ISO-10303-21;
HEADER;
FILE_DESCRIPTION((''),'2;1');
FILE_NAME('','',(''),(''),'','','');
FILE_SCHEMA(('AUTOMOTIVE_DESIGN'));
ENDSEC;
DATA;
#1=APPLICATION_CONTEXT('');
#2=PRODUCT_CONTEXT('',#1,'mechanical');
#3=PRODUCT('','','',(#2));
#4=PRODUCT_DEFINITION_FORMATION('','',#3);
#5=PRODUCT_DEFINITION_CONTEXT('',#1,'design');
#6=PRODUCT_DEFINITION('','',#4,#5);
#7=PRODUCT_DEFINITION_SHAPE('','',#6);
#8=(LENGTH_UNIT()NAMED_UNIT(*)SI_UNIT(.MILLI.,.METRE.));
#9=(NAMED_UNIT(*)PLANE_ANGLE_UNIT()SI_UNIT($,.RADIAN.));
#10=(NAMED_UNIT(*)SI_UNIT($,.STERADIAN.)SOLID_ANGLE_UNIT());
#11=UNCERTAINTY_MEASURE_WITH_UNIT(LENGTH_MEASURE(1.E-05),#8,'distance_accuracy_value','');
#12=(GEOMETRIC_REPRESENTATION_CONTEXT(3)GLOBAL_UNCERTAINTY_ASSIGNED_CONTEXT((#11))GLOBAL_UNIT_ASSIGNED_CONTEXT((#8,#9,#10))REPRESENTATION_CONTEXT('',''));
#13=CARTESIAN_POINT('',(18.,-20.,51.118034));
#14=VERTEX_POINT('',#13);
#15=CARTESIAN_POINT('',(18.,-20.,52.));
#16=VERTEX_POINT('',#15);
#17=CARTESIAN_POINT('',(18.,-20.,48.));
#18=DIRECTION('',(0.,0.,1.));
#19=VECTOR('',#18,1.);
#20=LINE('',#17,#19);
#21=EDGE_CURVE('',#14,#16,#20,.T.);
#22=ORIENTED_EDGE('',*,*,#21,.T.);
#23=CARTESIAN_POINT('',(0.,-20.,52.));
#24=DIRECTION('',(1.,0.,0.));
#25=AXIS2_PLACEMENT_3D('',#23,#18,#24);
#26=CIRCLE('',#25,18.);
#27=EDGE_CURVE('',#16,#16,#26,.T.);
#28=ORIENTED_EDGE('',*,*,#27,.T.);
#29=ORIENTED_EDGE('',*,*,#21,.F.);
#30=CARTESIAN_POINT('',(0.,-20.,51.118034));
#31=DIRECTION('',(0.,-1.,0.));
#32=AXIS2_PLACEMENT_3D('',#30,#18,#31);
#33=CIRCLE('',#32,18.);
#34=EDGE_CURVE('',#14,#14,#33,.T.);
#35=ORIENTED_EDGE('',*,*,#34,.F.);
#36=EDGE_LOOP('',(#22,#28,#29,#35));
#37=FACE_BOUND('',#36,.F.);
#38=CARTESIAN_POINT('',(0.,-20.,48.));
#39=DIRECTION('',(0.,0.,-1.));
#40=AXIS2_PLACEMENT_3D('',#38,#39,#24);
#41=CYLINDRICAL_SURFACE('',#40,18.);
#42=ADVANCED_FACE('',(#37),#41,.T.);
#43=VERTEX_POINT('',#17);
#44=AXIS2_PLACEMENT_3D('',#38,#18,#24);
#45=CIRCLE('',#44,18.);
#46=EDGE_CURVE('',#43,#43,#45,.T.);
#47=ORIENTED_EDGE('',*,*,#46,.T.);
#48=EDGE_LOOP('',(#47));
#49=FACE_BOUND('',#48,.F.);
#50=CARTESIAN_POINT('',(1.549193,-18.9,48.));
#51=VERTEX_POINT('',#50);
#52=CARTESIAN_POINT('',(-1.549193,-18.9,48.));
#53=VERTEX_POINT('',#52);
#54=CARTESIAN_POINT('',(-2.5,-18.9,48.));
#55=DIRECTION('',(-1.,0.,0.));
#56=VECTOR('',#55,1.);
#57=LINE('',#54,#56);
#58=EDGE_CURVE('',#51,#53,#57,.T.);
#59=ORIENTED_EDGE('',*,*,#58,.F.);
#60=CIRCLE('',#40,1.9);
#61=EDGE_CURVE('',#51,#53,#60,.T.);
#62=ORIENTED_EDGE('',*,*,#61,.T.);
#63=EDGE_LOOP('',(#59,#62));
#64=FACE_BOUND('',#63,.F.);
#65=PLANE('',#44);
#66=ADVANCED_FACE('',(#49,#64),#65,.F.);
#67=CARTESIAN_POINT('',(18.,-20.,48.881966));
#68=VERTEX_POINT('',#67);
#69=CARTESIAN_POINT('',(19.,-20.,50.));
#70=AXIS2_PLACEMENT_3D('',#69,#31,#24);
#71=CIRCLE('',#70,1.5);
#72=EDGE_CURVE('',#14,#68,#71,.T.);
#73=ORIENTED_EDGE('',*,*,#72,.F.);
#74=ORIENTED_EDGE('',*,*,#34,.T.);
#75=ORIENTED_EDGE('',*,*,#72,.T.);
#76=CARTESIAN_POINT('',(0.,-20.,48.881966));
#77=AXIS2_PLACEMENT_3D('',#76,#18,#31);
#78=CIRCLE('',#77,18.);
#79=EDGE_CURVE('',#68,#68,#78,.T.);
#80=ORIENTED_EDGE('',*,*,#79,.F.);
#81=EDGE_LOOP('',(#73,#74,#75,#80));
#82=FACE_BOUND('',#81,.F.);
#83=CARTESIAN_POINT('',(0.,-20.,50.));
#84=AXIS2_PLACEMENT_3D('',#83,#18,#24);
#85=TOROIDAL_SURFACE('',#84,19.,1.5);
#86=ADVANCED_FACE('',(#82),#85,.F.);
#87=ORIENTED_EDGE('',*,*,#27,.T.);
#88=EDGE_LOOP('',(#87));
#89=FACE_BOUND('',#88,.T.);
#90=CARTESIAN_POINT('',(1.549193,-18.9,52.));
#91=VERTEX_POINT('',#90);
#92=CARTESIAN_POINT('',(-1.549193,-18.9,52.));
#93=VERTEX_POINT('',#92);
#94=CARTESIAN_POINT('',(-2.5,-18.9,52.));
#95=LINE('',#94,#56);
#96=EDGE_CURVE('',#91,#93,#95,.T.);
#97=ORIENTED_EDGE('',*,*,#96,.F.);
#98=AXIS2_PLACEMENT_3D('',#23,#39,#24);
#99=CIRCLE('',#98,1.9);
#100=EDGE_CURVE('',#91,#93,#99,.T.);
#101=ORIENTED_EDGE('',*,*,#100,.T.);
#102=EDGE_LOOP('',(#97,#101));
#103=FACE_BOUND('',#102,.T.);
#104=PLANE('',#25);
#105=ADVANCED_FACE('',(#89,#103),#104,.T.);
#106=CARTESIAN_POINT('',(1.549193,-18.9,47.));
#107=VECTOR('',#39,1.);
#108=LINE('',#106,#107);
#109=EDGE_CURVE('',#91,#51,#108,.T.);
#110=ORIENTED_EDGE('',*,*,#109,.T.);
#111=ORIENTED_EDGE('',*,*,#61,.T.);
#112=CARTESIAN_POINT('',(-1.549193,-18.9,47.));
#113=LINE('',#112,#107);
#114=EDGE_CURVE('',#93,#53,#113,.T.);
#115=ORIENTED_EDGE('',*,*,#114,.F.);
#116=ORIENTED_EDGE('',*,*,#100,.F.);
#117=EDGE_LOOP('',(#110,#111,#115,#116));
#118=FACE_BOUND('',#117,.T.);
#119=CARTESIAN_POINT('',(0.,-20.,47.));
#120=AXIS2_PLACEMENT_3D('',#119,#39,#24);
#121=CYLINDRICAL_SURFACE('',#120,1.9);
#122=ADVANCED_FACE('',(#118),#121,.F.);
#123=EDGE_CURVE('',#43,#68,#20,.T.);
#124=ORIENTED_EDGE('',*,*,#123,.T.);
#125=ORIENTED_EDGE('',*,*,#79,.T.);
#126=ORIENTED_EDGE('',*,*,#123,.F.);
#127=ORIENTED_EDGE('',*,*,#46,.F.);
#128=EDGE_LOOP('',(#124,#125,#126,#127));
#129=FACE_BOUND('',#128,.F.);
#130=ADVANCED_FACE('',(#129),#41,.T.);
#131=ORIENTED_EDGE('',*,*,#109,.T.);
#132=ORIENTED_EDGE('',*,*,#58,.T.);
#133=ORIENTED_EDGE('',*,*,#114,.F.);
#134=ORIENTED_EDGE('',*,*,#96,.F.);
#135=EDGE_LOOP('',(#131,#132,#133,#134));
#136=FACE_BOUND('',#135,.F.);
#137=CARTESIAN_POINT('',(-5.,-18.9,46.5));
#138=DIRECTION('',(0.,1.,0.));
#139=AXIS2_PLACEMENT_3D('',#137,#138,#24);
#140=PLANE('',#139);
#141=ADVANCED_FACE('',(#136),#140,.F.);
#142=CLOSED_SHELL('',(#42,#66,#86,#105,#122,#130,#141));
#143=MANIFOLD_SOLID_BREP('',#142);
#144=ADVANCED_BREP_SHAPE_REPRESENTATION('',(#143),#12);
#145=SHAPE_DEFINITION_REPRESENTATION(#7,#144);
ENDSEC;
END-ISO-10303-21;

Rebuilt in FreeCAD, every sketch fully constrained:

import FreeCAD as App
import Part
import Sketcher
Q = App.Units.Quantity

doc = App.newDocument("Part")
body = doc.addObject("PartDesign::Body", "Body")

sketch1 = doc.addObject("Sketcher::SketchObject", "Sketch")
body.addObject(sketch1)
sketch1.AttachmentSupport = (doc.XZ_Plane, [""])
sketch1.MapMode = "FlatFace"
sketch1.addGeometry(Part.Circle(App.Vector(19, 2, 0), App.Vector(0, 0, 1), 1.5), False)
sketch1.addConstraint([
    Sketcher.Constraint("Diameter", 0, Q("3 mm")),
    Sketcher.Constraint("DistanceX", -1, 1, 0, 3, Q("19 mm")),
    Sketcher.Constraint("DistanceY", -1, 1, 0, 3, Q("2 mm")),
])
revolution = doc.addObject("PartDesign::Revolution", "Revolution")
body.addObject(revolution)
revolution.Profile = sketch1
revolution.ReferenceAxis = (sketch1, ["V_Axis"])
revolution.Angle = 360
body2 = doc.addObject("PartDesign::Body", "Body001")

sketch2 = doc.addObject("Sketcher::SketchObject", "Sketch001")
body2.addObject(sketch2)
sketch2.AttachmentSupport = (doc.getObject("XY_Plane001"), [""])
sketch2.MapMode = "FlatFace"
sketch2.AttachmentOffset = App.Placement(App.Vector(0, 0, -1.5), App.Rotation())
sketch2.addGeometry([
    Part.LineSegment(App.Vector(-5, 11.1, 0), App.Vector(-5, 1.1, 0)),
    Part.LineSegment(App.Vector(-5, 1.1, 0), App.Vector(5, 1.1, 0)),
    Part.LineSegment(App.Vector(5, 1.1, 0), App.Vector(5, 11.1, 0)),
    Part.LineSegment(App.Vector(5, 11.1, 0), App.Vector(-5, 11.1, 0)),
], False)
sketch2.addConstraint([
    Sketcher.Constraint("Coincident", 0, 2, 1, 1),
    Sketcher.Constraint("Coincident", 1, 2, 2, 1),
    Sketcher.Constraint("Coincident", 2, 2, 3, 1),
    Sketcher.Constraint("Coincident", 3, 2, 0, 1),
    Sketcher.Constraint("Vertical", 0),
    Sketcher.Constraint("Horizontal", 1),
    Sketcher.Constraint("Vertical", 2),
    Sketcher.Constraint("Horizontal", 3),
    Sketcher.Constraint("Equal", 3, 0),
    Sketcher.Constraint("DistanceX", 1, 1, 1, 2, Q("10 mm")),
    Sketcher.Constraint("DistanceX", 0, 2, -1, 1, Q("5 mm")),
    Sketcher.Constraint("DistanceY", -1, 1, 0, 2, Q("1.1 mm")),
])
pad1 = doc.addObject("PartDesign::Pad", "Pad")
body2.addObject(pad1)
pad1.Profile = sketch2
pad1.Length = 12
body3 = doc.addObject("PartDesign::Body", "Body002")

sketch3 = doc.addObject("Sketcher::SketchObject", "Sketch002")
body3.addObject(sketch3)
sketch3.AttachmentSupport = (doc.getObject("XY_Plane002"), [""])
sketch3.MapMode = "FlatFace"
sketch3.AttachmentOffset = App.Placement(App.Vector(0, 0, -1), App.Rotation())
sketch3.addGeometry(Part.Circle(App.Vector(0, 0, 0), App.Vector(0, 0, 1), 1.9), False)
sketch3.addConstraint([
    Sketcher.Constraint("Coincident", 0, 3, -1, 1),
    Sketcher.Constraint("Diameter", 0, Q("3.8 mm")),
])
pad2 = doc.addObject("PartDesign::Pad", "Pad001")
body3.addObject(pad2)
pad2.Profile = sketch3
pad2.Length = 10
doc.recompute()

boolean = doc.addObject("PartDesign::Boolean", "Boolean")
body3.addObject(boolean)
boolean.Type = "Cut"
boolean.addObjects([body2])
body4 = doc.addObject("PartDesign::Body", "Body003")

sketch4 = doc.addObject("Sketcher::SketchObject", "Sketch003")
body4.addObject(sketch4)
sketch4.AttachmentSupport = (doc.getObject("XY_Plane003"), [""])
sketch4.MapMode = "FlatFace"
sketch4.addGeometry(Part.Circle(App.Vector(0, 0, 0), App.Vector(0, 0, 1), 18), False)
sketch4.addConstraint([
    Sketcher.Constraint("Coincident", 0, 3, -1, 1),
    Sketcher.Constraint("Diameter", 0, Q("36 mm")),
])
pad3 = doc.addObject("PartDesign::Pad", "Pad002")
body4.addObject(pad3)
pad3.Profile = sketch4
pad3.Length = 4
doc.recompute()

boolean2 = doc.addObject("PartDesign::Boolean", "Boolean001")
body4.addObject(boolean2)
boolean2.Type = "Cut"
boolean2.addObjects([body3])
doc.recompute()

boolean3 = doc.addObject("PartDesign::Boolean", "Boolean002")
body4.addObject(boolean3)
boolean3.Type = "Cut"
boolean3.addObjects([body])
body5 = doc.addObject("PartDesign::Body", "Body004")
doc.recompute()

body4.Placement = App.Placement(App.Vector(0, -20, 48), App.Rotation(App.Vector(0, 0, 1), 0))
boolean4 = doc.addObject("PartDesign::Boolean", "Boolean003")
body5.addObject(boolean4)
boolean4.Type = "Fuse"
boolean4.addObjects([body4])

doc.recompute()
